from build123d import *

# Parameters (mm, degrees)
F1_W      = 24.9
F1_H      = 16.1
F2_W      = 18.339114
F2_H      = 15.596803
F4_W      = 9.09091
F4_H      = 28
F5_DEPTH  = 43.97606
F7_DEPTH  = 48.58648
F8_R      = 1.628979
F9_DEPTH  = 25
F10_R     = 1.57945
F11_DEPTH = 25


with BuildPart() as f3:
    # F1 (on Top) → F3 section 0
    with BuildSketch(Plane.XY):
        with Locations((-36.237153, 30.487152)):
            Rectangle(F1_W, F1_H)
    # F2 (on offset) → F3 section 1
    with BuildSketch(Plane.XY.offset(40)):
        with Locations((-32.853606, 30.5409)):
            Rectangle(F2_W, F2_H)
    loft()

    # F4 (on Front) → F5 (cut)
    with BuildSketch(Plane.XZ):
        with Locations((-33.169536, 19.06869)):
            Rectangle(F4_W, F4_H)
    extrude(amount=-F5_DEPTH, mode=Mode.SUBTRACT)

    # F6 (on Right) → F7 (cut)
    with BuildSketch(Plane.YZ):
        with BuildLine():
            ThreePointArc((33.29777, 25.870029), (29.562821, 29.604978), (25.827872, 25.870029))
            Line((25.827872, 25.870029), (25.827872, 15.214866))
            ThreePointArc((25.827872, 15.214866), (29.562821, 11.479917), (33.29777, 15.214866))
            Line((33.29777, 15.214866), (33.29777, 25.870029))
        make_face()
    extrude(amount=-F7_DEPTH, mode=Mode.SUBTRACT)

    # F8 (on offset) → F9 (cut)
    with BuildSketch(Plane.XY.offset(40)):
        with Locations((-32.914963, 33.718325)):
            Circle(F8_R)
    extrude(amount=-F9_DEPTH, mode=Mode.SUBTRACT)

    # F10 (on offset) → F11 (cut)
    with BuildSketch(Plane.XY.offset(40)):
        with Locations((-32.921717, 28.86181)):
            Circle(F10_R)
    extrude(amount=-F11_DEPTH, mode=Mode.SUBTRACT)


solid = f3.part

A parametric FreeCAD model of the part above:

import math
import FreeCAD as App
import Part
import Sketcher
from FreeCAD import Vector

doc = App.newDocument("Part")
body = doc.addObject("PartDesign::Body", "Body")

# Sketch on XY plane
sketch1 = body.newObject("Sketcher::SketchObject", "Sketch")
sketch1.AttachmentSupport = (doc.getObject("XY_Plane"), [""])
sketch1.MapMode = "FlatFace"
sketch1.addGeometry([
    Part.LineSegment(Vector(-48.687153, 38.537152, 0), Vector(-48.687153, 22.437152, 0)),
    Part.LineSegment(Vector(-48.687153, 22.437152, 0), Vector(-23.787153, 22.437152, 0)),
    Part.LineSegment(Vector(-23.787153, 22.437152, 0), Vector(-23.787153, 38.537152, 0)),
    Part.LineSegment(Vector(-23.787153, 38.537152, 0), Vector(-48.687153, 38.537152, 0)),
], False)
sketch1.addConstraint([
    Sketcher.Constraint("Coincident", 0, 2, 1, 1),
    Sketcher.Constraint("Coincident", 1, 2, 2, 1),
    Sketcher.Constraint("Coincident", 2, 2, 3, 1),
    Sketcher.Constraint("Coincident", 3, 2, 0, 1),
    Sketcher.Constraint("Vertical", 0),
    Sketcher.Constraint("Horizontal", 1),
    Sketcher.Constraint("Vertical", 2),
    Sketcher.Constraint("Horizontal", 3),
    Sketcher.Constraint("DistanceX", 1, 1, 1, 2, 24.9),
    Sketcher.Constraint("DistanceY", 0, 2, 0, 1, 16.1),
    Sketcher.Constraint("DistanceX", 0, 2, -1, 1, 48.687153),
    Sketcher.Constraint("DistanceY", -1, 1, 0, 2, 22.437152),
])

# Sketch on XY plane
sketch2 = body.newObject("Sketcher::SketchObject", "Sketch001")
sketch2.AttachmentSupport = (doc.getObject("XY_Plane"), [""])
sketch2.MapMode = "FlatFace"
sketch2.AttachmentOffset = App.Placement(Vector(0, 0, 40), App.Rotation())
sketch2.addGeometry([
    Part.LineSegment(Vector(-42.023163, 38.339301, 0), Vector(-42.023163, 22.742498, 0)),
    Part.LineSegment(Vector(-42.023163, 22.742498, 0), Vector(-23.684049, 22.742498, 0)),
    Part.LineSegment(Vector(-23.684049, 22.742498, 0), Vector(-23.684049, 38.339301, 0)),
    Part.LineSegment(Vector(-23.684049, 38.339301, 0), Vector(-42.023163, 38.339301, 0)),
], False)
sketch2.addConstraint([
    Sketcher.Constraint("Coincident", 0, 2, 1, 1),
    Sketcher.Constraint("Coincident", 1, 2, 2, 1),
    Sketcher.Constraint("Coincident", 2, 2, 3, 1),
    Sketcher.Constraint("Coincident", 3, 2, 0, 1),
    Sketcher.Constraint("Vertical", 0),
    Sketcher.Constraint("Horizontal", 1),
    Sketcher.Constraint("Vertical", 2),
    Sketcher.Constraint("Horizontal", 3),
    Sketcher.Constraint("DistanceY", -1, 1, 0, 2, 22.742498),
    Sketcher.Constraint("DistanceY", -1, 1, 2, 2, 38.339301),
    Sketcher.Constraint("DistanceX", 1, 1, 1, 2, 18.339114),
    Sketcher.Constraint("DistanceX", 1, 2, -1, 1, 23.684049),
])

additiveloft = body.newObject("PartDesign::AdditiveLoft", "AdditiveLoft")
additiveloft.Profile = sketch1
additiveloft.Sections = [sketch2]

# Sketch on XZ plane
sketch3 = body.newObject("Sketcher::SketchObject", "Sketch002")
sketch3.AttachmentSupport = (doc.getObject("XZ_Plane"), [""])
sketch3.MapMode = "FlatFace"
sketch3.addGeometry([
    Part.LineSegment(Vector(-37.714991, 33.06869, 0), Vector(-37.714991, 5.06869, 0)),
    Part.LineSegment(Vector(-37.714991, 5.06869, 0), Vector(-28.624081, 5.06869, 0)),
    Part.LineSegment(Vector(-28.624081, 5.06869, 0), Vector(-28.624081, 33.06869, 0)),
    Part.LineSegment(Vector(-28.624081, 33.06869, 0), Vector(-37.714991, 33.06869, 0)),
], False)
sketch3.addConstraint([
    Sketcher.Constraint("Coincident", 0, 2, 1, 1),
    Sketcher.Constraint("Coincident", 1, 2, 2, 1),
    Sketcher.Constraint("Coincident", 2, 2, 3, 1),
    Sketcher.Constraint("Coincident", 3, 2, 0, 1),
    Sketcher.Constraint("Vertical", 0),
    Sketcher.Constraint("Horizontal", 1),
    Sketcher.Constraint("Vertical", 2),
    Sketcher.Constraint("Horizontal", 3),
    Sketcher.Constraint("DistanceY", 0, 2, 0, 1, 28.0),
    Sketcher.Constraint("DistanceX", 1, 1, 1, 2, 9.09091),
    Sketcher.Constraint("DistanceX", 0, 2, -1, 1, 37.714991),
    Sketcher.Constraint("DistanceY", -1, 1, 0, 2, 5.06869),
])
pocket1 = body.newObject("PartDesign::Pocket", "Pocket")
pocket1.Profile = sketch3
pocket1.Length = 43.97606

# Sketch on YZ plane
sketch4 = body.newObject("Sketcher::SketchObject", "Sketch003")
sketch4.AttachmentSupport = (doc.getObject("YZ_Plane"), [""])
sketch4.MapMode = "FlatFace"
sketch4.addGeometry([
    Part.ArcOfCircle(Part.Circle(Vector(29.562821, 25.870029, 0), Vector(0, 0, 1), 3.734949), math.radians(0), math.radians(180)),
    Part.LineSegment(Vector(25.827872, 25.870029, 0), Vector(25.827872, 15.214866, 0)),
    Part.ArcOfCircle(Part.Circle(Vector(29.562821, 15.214866, 0), Vector(0, 0, 1), 3.734949), math.radians(180), math.radians(360)),
    Part.LineSegment(Vector(33.29777, 15.214866, 0), Vector(33.29777, 25.870029, 0)),
], False)
sketch4.addConstraint([
    Sketcher.Constraint("Tangent", 0, 2, 1, 1),
    Sketcher.Constraint("Tangent", 1, 2, 2, 1),
    Sketcher.Constraint("Tangent", 2, 2, 3, 1),
    Sketcher.Constraint("Tangent", 3, 2, 0, 1),
    Sketcher.Constraint("Vertical", 1),
    Sketcher.Constraint("Vertical", 3),
    Sketcher.Constraint("Radius", 0, 3.734949),
    Sketcher.Constraint("DistanceY", 1, 2, 1, 1, 10.655163),
    Sketcher.Constraint("DistanceX", -1, 1, 0, 3, 29.562821),
    Sketcher.Constraint("DistanceY", -1, 1, 0, 3, 25.870029),
])
pocket2 = body.newObject("PartDesign::Pocket", "Pocket001")
pocket2.Profile = sketch4
pocket2.Length = 48.58648

# Sketch on XY plane
sketch5 = body.newObject("Sketcher::SketchObject", "Sketch004")
sketch5.AttachmentSupport = (doc.getObject("XY_Plane"), [""])
sketch5.MapMode = "FlatFace"
sketch5.AttachmentOffset = App.Placement(Vector(0, 0, 40), App.Rotation())
sketch5.addGeometry(Part.Circle(Vector(-32.914963, 33.718325, 0), Vector(0, 0, 1), 1.628979), False)
sketch5.addConstraint([
    Sketcher.Constraint("Diameter", 0, 3.257958),
    Sketcher.Constraint("DistanceX", 0, 3, -1, 1, 32.914963),
    Sketcher.Constraint("DistanceY", -1, 1, 0, 3, 33.718325),
])
pocket3 = body.newObject("PartDesign::Pocket", "Pocket002")
pocket3.Profile = sketch5
pocket3.Length = 25

# Sketch on XY plane
sketch6 = body.newObject("Sketcher::SketchObject", "Sketch005")
sketch6.AttachmentSupport = (doc.getObject("XY_Plane"), [""])
sketch6.MapMode = "FlatFace"
sketch6.AttachmentOffset = App.Placement(Vector(0, 0, 40), App.Rotation())
sketch6.addGeometry(Part.Circle(Vector(-32.921717, 28.86181, 0), Vector(0, 0, 1), 1.57945), False)
sketch6.addConstraint([
    Sketcher.Constraint("Diameter", 0, 3.1589),
    Sketcher.Constraint("DistanceY", -1, 1, 0, 3, 28.86181),
    Sketcher.Constraint("DistanceX", 0, 3, -1, 1, 32.921717),
])
pocket4 = body.newObject("PartDesign::Pocket", "Pocket003")
pocket4.Profile = sketch6
pocket4.Length = 25

doc.recompute()
